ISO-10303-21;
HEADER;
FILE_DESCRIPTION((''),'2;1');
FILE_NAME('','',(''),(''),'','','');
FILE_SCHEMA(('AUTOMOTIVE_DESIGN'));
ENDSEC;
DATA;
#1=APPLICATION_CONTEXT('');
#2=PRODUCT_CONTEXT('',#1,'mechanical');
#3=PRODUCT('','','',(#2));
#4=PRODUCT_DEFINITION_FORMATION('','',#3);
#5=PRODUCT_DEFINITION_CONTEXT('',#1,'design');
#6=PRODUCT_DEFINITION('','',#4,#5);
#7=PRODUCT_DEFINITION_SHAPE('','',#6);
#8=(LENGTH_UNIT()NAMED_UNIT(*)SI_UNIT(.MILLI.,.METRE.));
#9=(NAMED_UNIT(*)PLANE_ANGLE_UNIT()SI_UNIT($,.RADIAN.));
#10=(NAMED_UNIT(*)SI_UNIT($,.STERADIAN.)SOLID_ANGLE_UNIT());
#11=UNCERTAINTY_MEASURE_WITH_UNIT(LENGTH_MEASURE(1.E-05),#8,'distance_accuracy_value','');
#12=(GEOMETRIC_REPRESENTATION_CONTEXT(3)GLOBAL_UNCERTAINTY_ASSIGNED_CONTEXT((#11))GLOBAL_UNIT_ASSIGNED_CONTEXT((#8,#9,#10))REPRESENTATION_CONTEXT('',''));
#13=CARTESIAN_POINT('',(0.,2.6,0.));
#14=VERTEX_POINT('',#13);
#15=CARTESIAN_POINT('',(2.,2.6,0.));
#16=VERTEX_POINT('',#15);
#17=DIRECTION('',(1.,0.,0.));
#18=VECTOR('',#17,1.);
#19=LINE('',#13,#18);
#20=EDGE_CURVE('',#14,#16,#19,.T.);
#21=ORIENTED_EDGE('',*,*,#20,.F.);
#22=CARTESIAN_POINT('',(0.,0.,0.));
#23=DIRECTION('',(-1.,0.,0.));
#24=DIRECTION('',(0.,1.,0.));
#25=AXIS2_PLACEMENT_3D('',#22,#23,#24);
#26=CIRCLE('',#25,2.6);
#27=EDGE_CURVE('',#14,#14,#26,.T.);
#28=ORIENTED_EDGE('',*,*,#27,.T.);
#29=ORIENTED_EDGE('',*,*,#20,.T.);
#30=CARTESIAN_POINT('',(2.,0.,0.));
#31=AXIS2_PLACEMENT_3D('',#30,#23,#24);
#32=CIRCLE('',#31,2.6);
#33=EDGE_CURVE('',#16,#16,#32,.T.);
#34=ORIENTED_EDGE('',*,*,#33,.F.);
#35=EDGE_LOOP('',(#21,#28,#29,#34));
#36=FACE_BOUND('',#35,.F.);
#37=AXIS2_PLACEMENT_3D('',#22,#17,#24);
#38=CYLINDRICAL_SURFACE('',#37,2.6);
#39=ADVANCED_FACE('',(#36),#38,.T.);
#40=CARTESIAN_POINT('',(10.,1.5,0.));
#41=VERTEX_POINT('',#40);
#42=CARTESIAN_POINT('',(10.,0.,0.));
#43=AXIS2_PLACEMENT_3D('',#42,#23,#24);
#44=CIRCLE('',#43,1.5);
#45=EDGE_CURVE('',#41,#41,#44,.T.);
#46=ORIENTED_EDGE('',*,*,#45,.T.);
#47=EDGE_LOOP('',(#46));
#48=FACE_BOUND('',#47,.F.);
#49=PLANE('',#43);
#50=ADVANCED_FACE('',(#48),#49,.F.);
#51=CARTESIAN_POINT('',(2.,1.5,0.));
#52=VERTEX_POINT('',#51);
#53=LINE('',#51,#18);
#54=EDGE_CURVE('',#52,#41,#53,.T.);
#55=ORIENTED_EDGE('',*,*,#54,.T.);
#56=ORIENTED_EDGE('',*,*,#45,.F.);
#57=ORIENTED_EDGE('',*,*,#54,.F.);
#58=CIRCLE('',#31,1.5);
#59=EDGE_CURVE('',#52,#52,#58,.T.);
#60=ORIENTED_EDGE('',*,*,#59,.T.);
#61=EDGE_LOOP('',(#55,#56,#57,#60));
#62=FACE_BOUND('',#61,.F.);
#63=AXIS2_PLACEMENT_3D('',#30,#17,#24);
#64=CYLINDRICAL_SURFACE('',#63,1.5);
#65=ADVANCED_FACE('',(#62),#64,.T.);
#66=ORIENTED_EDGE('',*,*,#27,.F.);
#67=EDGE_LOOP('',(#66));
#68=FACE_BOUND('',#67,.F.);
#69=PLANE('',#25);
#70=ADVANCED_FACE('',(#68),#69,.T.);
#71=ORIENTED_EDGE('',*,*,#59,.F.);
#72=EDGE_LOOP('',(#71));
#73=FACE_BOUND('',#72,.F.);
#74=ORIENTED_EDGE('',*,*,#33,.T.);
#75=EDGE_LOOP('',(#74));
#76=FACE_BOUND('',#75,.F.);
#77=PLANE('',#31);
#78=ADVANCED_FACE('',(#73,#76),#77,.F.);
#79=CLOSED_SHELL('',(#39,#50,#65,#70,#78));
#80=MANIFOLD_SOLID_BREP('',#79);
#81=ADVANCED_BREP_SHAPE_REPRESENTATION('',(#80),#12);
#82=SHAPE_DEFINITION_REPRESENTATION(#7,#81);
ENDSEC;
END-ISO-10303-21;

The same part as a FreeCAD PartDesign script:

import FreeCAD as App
import Part
import Sketcher


def add_polygon(sketch, points):
    """Adds a closed chain of lines whose ends are joined by coincident constraints."""
    first, n = sketch.GeometryCount, len(points)
    for a, b in zip(points, points[1:] + points[:1]):
        sketch.addGeometry(Part.LineSegment(App.Vector(*a, 0), App.Vector(*b, 0)), False)
    for i in range(n):
        sketch.addConstraint(Sketcher.Constraint("Coincident", first + i, 2, first + (i + 1) % n, 1))

doc = App.newDocument("Part")
body = doc.addObject("PartDesign::Body", "Body")

# Sketch on XY plane
sketch1 = doc.addObject("Sketcher::SketchObject", "Sketch")
body.addObject(sketch1)
sketch1.AttachmentSupport = (doc.XY_Plane, [""])
sketch1.MapMode = "FlatFace"
add_polygon(sketch1, [(0, 2.6), (0, 0), (10, 0), (10, 1.5), (2, 1.5), (2, 2.6)])  # lines 0-5
sketch1.addConstraint([
    Sketcher.Constraint("Vertical", 0),
    Sketcher.Constraint("Horizontal", 1),
    Sketcher.Constraint("Vertical", 2),
    Sketcher.Constraint("Horizontal", 3),
    Sketcher.Constraint("Vertical", 4),
    Sketcher.Constraint("Horizontal", 5),
    Sketcher.Constraint("Coincident", 0, 2, -1, 1),
    Sketcher.Constraint("DistanceX", 3, 2, 3, 1, 8.0),
    Sketcher.Constraint("DistanceX", 5, 2, 5, 1, 2.0),
    Sketcher.Constraint("DistanceY", 0, 2, 0, 1, 2.6),
    Sketcher.Constraint("DistanceY", 4, 1, 4, 2, 1.1),
])
revolution = doc.addObject("PartDesign::Revolution", "Revolution")
body.addObject(revolution)
revolution.Profile = sketch1
revolution.ReferenceAxis = (sketch1, ["H_Axis"])
revolution.Angle = 360

doc.recompute()
